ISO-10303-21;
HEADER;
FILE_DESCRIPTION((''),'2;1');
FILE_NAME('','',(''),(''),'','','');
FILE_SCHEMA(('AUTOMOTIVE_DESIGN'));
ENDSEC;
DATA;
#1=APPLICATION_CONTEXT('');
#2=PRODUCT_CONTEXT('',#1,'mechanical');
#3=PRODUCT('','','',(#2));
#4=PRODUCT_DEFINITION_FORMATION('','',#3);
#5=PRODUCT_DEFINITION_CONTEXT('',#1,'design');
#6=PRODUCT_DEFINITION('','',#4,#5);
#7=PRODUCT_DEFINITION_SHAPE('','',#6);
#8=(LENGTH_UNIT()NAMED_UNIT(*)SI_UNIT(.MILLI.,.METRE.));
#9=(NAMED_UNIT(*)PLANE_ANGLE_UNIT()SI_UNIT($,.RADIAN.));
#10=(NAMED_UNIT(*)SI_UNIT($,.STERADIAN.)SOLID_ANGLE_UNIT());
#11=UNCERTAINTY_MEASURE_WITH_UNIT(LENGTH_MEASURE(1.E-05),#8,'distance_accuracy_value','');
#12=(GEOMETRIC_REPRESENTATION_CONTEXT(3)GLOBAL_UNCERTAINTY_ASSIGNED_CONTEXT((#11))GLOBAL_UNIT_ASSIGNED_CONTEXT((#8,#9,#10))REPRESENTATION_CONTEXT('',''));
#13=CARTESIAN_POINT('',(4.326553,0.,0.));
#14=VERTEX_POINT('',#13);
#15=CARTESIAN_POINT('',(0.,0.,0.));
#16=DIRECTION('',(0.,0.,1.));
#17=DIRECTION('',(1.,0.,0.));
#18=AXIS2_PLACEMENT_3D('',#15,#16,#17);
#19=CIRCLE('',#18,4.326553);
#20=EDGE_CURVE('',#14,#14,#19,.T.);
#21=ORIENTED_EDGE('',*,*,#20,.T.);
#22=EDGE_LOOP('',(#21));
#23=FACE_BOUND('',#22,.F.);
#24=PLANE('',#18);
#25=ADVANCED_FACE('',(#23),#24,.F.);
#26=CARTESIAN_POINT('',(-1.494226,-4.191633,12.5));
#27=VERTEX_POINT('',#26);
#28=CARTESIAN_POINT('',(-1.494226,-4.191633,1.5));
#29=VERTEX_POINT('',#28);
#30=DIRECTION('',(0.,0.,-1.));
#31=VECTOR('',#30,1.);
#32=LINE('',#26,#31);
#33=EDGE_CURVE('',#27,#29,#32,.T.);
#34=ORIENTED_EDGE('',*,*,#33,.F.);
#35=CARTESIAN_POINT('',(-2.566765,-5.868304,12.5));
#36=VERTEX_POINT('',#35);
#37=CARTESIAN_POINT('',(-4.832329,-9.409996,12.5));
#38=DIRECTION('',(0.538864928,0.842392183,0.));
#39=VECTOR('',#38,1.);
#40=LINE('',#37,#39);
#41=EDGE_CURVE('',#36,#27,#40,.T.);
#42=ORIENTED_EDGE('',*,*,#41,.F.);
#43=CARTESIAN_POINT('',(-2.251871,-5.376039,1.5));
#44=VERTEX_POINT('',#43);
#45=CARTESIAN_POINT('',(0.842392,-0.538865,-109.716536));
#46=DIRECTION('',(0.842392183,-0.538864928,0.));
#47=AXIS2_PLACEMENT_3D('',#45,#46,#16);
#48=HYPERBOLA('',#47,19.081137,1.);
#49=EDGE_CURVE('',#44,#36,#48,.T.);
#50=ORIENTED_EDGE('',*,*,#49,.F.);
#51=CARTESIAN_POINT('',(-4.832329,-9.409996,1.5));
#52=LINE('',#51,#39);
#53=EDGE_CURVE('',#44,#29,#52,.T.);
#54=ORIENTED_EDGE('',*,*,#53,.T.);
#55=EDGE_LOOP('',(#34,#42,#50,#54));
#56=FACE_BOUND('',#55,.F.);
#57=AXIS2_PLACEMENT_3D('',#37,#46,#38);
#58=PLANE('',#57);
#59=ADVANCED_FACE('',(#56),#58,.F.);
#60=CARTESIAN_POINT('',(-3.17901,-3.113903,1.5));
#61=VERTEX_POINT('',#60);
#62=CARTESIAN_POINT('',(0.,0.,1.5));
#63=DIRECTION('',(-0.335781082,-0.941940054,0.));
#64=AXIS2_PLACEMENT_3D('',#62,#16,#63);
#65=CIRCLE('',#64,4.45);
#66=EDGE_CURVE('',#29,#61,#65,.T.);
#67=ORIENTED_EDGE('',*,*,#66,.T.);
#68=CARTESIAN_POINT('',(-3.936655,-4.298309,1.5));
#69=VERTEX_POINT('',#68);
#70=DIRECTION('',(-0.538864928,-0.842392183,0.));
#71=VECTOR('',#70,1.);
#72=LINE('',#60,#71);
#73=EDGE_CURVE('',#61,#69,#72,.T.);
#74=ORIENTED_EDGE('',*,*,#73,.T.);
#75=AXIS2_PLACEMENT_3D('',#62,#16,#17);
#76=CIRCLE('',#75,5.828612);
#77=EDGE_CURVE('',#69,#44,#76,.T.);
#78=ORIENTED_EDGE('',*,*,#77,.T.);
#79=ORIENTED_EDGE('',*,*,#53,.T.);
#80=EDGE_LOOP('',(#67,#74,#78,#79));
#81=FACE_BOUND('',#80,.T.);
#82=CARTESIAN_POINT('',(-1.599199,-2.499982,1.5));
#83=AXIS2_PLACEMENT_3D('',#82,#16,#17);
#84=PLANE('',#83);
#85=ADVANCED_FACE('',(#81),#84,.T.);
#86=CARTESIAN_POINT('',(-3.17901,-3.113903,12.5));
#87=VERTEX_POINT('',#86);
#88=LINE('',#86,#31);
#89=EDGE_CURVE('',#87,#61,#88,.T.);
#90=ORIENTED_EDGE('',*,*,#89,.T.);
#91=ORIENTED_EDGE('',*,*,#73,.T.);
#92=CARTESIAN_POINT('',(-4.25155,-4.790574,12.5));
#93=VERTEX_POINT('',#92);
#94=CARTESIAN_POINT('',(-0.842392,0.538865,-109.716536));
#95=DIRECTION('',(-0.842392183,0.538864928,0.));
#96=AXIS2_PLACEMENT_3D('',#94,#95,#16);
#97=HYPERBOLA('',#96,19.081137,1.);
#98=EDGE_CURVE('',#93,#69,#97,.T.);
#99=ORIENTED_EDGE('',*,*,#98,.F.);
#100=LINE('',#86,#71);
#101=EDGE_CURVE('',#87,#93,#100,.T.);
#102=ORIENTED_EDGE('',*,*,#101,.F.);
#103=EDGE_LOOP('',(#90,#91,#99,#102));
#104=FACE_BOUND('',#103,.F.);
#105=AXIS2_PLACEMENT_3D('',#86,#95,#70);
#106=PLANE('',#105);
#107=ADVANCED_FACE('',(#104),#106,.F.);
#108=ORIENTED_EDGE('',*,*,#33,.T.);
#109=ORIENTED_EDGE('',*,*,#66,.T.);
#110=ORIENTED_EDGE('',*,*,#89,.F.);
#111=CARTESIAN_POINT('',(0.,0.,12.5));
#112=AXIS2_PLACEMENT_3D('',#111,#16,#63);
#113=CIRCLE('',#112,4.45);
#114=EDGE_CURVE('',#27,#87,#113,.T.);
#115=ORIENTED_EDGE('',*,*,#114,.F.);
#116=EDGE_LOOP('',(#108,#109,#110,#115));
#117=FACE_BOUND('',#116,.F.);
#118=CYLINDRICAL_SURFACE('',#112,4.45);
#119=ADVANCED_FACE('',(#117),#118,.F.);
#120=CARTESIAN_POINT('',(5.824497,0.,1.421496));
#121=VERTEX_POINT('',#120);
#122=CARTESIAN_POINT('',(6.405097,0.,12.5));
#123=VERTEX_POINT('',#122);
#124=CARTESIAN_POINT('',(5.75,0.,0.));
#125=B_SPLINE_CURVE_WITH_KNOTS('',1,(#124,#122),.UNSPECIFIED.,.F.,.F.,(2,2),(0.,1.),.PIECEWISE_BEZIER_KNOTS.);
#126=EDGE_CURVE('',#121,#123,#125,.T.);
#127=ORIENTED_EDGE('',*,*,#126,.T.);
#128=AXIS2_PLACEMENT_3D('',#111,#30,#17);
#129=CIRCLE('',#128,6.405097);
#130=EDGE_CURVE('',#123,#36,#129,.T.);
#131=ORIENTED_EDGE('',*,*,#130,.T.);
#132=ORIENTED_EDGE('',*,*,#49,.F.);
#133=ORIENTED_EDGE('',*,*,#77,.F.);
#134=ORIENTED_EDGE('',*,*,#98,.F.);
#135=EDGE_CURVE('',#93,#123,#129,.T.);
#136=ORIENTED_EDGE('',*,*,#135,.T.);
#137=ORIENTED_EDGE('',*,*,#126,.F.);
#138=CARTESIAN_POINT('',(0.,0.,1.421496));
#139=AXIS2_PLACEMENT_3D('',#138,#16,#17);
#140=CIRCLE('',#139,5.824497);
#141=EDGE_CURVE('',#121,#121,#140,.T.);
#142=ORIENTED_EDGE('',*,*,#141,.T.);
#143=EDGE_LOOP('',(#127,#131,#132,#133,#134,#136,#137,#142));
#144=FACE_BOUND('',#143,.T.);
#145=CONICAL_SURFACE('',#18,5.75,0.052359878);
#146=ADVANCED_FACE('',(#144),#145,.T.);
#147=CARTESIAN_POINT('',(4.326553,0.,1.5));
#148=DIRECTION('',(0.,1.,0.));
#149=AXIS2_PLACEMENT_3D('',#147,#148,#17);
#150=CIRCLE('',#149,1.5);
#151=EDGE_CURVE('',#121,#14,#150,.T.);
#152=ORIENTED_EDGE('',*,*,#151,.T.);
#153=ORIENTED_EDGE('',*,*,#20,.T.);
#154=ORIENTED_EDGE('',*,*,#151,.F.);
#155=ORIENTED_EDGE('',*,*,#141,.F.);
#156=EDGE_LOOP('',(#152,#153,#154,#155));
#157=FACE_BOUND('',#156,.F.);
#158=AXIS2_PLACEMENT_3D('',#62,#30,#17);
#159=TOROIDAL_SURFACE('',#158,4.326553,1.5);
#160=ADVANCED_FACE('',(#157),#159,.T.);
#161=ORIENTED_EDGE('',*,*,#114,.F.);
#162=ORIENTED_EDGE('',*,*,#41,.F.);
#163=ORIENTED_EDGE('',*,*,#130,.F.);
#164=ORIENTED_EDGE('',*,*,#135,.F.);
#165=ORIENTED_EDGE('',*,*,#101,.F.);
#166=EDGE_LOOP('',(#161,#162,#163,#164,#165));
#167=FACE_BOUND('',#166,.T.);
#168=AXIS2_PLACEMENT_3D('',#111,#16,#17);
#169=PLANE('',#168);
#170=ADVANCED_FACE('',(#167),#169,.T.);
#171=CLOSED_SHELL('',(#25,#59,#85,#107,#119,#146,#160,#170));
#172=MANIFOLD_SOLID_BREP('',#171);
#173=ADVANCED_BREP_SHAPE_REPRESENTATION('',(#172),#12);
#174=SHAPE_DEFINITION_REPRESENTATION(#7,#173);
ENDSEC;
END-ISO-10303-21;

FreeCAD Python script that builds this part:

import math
import FreeCAD as App
import Part
import Sketcher

V = App.Vector


def edges_at(feature, points):
    """Names of the edges that pass closest to the given points."""
    edges = feature.Shape.Edges
    near = lambda p: min(range(len(edges)), key=lambda i: edges[i].distToShape(Part.Vertex(*p))[0])
    return sorted({f"Edge{near(p) + 1}" for p in points})

doc = App.newDocument("Part")
params = doc.addObject("Spreadsheet::Sheet", "Params")
for row, (alias, value) in enumerate([
    ("sketch1_diameter", "11.5 mm"),
    ("pad1_length", "12.5 mm"),
    ("pad1_taper", "3 deg"),
    ("sketch2_radius", "4.45 mm"),
    ("sketch2_length", "2 mm"),
    ("pocket1_length", "11 mm"),
    ("fillet_radius", "1.5 mm"),
], start=1):
    params.set(f"A{row}", alias)
    params.set(f"B{row}", "=" + value)
    params.setAlias(f"B{row}", alias)

body = doc.addObject("PartDesign::Body", "Body")

# Sketch on XY plane
sketch1 = body.newObject("Sketcher::SketchObject", "Sketch")
sketch1.AttachmentSupport = (doc.getObject("XY_Plane"), [""])
sketch1.MapMode = "FlatFace"
sketch1.addGeometry(Part.Circle(V(0, 0, 0), V(0, 0, 1), 6), False)
sketch1.addConstraint(Sketcher.Constraint("Coincident", 0, 3, -1, 1))
sketch1.addConstraint(Sketcher.Constraint("Diameter", 0, 11.5))
sketch1.setExpression("Constraints[1]", "Params.sketch1_diameter")
pad1 = body.newObject("PartDesign::Pad", "Pad")
pad1.Profile = sketch1
pad1.setExpression("Length", "Params.pad1_length")
pad1.setExpression("TaperAngle", "Params.pad1_taper")

# Sketch on XY plane
sketch2 = body.newObject("Sketcher::SketchObject", "Sketch001")
sketch2.AttachmentSupport = (doc.getObject("XY_Plane"), [""])
sketch2.MapMode = "FlatFace"
sketch2.AttachmentOffset = App.Placement(V(0, 0, 12.5), App.Rotation())
sketch2.addGeometry(Part.LineSegment(V(-4.8, -9.4, 0), V(-1.5, -4.2, 0)), False)
sketch2.addGeometry(Part.ArcOfCircle(Part.Circle(V(0, 0, 0), V(0, 0, 1), 4.5), math.radians(-110), math.radians(224)), False)
sketch2.addGeometry(Part.LineSegment(V(-3.2, -3.1, 0), V(-6.5, -8.3, 0)), False)
sketch2.addGeometry(Part.LineSegment(V(-6.5, -8.3, 0), V(-4.8, -9.4, 0)), False)
sketch2.addConstraint(Sketcher.Constraint("Coincident", 0, 2, 1, 1))
sketch2.addConstraint(Sketcher.Constraint("Coincident", 1, 2, 2, 1))
sketch2.addConstraint(Sketcher.Constraint("Coincident", 2, 2, 3, 1))
sketch2.addConstraint(Sketcher.Constraint("Coincident", 3, 2, 0, 1))
sketch2.addConstraint(Sketcher.Constraint("Coincident", 1, 3, -1, 1))
sketch2.addConstraint(Sketcher.Constraint("Parallel", 0, 2))
sketch2.addConstraint(Sketcher.Constraint("Perpendicular", 2, 3))
sketch2.addConstraint(Sketcher.Constraint("Equal", 0, 2))
sketch2.addConstraint(Sketcher.Constraint("Radius", 1, 4.45))
sketch2.addConstraint(Sketcher.Constraint("Distance", 3, 2.0))
sketch2.addConstraint(Sketcher.Constraint("DistanceX", 1, 2, -1, 1, 3.17901))
sketch2.addConstraint(Sketcher.Constraint("DistanceX", 3, 2, -1, 1, 4.832329))
sketch2.setExpression("Constraints[8]", "Params.sketch2_radius")
sketch2.setExpression("Constraints[9]", "Params.sketch2_length")
pocket1 = body.newObject("PartDesign::Pocket", "Pocket")
pocket1.Profile = sketch2
pocket1.setExpression("Length", "Params.pocket1_length")
doc.recompute()

fillet = body.newObject("PartDesign::Fillet", "Fillet")
fillet.Base = (pocket1, edges_at(pocket1, [(-5.75, 0, 0)]))
fillet.setExpression("Radius", "Params.fillet_radius")

doc.recompute()
